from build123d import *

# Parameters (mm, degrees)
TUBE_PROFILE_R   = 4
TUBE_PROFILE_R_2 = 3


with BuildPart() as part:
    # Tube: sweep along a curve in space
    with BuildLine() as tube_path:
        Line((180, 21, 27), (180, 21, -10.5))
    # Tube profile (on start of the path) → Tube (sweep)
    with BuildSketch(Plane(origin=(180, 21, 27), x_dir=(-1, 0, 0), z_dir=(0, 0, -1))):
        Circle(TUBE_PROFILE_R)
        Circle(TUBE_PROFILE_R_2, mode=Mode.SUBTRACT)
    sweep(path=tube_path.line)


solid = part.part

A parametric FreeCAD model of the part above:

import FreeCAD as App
import Part
import Sketcher

V = App.Vector
Q = App.Units.Quantity

doc = App.newDocument("Part")
body = doc.addObject("PartDesign::Body", "Body")

# Sketch on XY plane
sketch1 = body.newObject("Sketcher::SketchObject", "Sketch")
sketch1.AttachmentSupport = (doc.getObject("XY_Plane"), [""])
sketch1.MapMode = "FlatFace"
sketch1.AttachmentOffset = App.Placement(V(0, 0, 27), App.Rotation())
sketch1.addGeometry(Part.Circle(V(180, 21, 0), V(0, 0, 1), 4), False)
sketch1.addGeometry(Part.Circle(V(180, 21, 0), V(0, 0, 1), 3), False)
sketch1.addConstraint(Sketcher.Constraint("Coincident", 1, 3, 0, 3))
sketch1.addConstraint(Sketcher.Constraint("Diameter", 0, Q("8 mm")))
sketch1.addConstraint(Sketcher.Constraint("Diameter", 1, Q("6 mm")))
sketch1.addConstraint(Sketcher.Constraint("DistanceX", -1, 1, 0, 3, Q("180 mm")))
sketch1.addConstraint(Sketcher.Constraint("DistanceY", -1, 1, 0, 3, Q("21 mm")))

# Sketch on XZ plane
sketch2 = body.newObject("Sketcher::SketchObject", "Sketch001")
sketch2.AttachmentSupport = (doc.getObject("XZ_Plane"), [""])
sketch2.MapMode = "FlatFace"
sketch2.AttachmentOffset = App.Placement(V(0, 0, -21), App.Rotation())
sketch2.addGeometry(Part.LineSegment(V(180, 27, 0), V(180, -10, 0)), False)
sketch2.addConstraint(Sketcher.Constraint("Vertical", 0))
sketch2.addConstraint(Sketcher.Constraint("DistanceY", 0, 2, 0, 1, Q("37.5 mm")))
sketch2.addConstraint(Sketcher.Constraint("DistanceX", -1, 1, 0, 1, Q("180 mm")))
sketch2.addConstraint(Sketcher.Constraint("DistanceY", -1, 1, 0, 1, Q("27 mm")))
doc.recompute()

additivepipe = body.newObject("PartDesign::AdditivePipe", "AdditivePipe")
additivepipe.Profile = sketch1
additivepipe.Spine = (sketch2, ["Edge1"])

doc.recompute()
